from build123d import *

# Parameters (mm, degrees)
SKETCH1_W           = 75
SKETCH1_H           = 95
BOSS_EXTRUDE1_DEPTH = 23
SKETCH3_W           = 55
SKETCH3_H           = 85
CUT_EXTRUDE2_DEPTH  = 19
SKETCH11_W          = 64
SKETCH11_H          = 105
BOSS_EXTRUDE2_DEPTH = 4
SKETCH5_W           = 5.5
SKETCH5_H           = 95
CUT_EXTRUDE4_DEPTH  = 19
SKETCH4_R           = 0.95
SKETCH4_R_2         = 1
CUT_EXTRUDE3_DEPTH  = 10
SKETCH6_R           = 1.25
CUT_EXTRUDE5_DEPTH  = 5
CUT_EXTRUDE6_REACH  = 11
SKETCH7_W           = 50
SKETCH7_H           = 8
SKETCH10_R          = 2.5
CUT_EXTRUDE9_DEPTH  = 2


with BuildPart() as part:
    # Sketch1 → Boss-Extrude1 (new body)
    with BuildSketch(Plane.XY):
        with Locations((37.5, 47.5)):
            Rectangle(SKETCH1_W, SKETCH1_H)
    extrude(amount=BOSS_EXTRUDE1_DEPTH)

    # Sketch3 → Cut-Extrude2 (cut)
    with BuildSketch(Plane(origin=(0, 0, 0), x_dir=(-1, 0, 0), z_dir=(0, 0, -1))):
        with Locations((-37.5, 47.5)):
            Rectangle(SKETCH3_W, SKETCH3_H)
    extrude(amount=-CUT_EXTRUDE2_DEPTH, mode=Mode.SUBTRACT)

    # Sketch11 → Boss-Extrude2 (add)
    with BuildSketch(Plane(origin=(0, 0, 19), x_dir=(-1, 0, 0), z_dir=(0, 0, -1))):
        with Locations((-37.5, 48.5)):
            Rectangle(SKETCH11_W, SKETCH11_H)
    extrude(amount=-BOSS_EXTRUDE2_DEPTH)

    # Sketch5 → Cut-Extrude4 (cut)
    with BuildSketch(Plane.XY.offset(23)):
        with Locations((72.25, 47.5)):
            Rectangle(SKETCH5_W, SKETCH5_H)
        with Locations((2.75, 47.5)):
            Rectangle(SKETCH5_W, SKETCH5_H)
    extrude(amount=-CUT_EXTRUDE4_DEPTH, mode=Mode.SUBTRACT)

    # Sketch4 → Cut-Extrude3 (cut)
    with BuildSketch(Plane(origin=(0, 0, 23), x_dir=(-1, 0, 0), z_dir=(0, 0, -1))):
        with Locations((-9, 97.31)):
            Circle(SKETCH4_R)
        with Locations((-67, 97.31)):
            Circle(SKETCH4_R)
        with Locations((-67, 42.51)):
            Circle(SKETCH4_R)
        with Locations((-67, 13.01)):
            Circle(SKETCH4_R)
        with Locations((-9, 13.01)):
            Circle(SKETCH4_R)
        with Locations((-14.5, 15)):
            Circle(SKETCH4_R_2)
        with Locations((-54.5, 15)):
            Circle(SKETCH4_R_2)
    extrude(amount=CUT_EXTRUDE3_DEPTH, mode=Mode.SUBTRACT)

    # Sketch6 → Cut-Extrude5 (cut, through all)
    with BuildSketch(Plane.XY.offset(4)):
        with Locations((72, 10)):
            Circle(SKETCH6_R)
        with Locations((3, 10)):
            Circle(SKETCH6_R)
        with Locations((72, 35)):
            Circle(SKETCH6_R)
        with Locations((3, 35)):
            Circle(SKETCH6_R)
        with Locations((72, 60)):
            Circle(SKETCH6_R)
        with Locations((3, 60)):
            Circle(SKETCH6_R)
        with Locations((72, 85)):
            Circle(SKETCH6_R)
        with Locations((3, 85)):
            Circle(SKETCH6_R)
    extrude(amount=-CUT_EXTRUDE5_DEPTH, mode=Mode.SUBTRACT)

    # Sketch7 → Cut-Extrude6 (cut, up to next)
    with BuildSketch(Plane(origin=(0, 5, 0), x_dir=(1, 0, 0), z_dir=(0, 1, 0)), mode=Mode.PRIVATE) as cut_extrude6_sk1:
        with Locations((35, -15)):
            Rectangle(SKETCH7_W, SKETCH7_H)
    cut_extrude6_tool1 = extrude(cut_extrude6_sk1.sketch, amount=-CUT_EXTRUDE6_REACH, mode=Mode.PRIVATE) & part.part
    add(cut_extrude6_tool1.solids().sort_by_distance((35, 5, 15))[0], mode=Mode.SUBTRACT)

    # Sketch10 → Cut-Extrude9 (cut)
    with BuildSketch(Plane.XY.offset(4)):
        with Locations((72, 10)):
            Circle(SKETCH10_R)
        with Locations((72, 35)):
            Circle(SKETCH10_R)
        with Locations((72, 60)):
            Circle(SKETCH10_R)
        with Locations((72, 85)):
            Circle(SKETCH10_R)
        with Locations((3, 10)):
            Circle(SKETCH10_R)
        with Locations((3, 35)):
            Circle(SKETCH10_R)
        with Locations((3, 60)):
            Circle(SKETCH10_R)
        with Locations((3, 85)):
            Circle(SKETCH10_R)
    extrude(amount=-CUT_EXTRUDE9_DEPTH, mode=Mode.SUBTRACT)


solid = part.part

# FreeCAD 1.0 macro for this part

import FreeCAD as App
import Part
import Sketcher
Q = App.Units.Quantity


def add_polygon(sketch, points):
    """Adds a closed chain of lines whose ends are joined by coincident constraints."""
    first, n = sketch.GeometryCount, len(points)
    for a, b in zip(points, points[1:] + points[:1]):
        sketch.addGeometry(Part.LineSegment(App.Vector(*a, 0), App.Vector(*b, 0)), False)
    for i in range(n):
        sketch.addConstraint(Sketcher.Constraint("Coincident", first + i, 2, first + (i + 1) % n, 1))

doc = App.newDocument("Part")
params = doc.addObject("Spreadsheet::Sheet", "Params")
for row, (alias, value) in enumerate([
    ("sketch1_width", "75 mm"),
    ("sketch1_height", "95 mm"),
    ("pad1_length", "23 mm"),
    ("sketch2_width", "55 mm"),
    ("sketch2_height", "85 mm"),
    ("pocket1_length", "19 mm"),
    ("sketch3_width", "64 mm"),
    ("sketch3_height", "105 mm"),
    ("pad2_length", "4 mm"),
    ("sketch4_height", "95 mm"),
    ("sketch4_width", "5.5 mm"),
    ("pocket2_length", "19 mm"),
    ("sketch5_diameter", "2 mm"),
    ("sketch5_diameter2", "1.9 mm"),
    ("pocket3_length", "10 mm"),
    ("sketch6_diameter", "2.5 mm"),
    ("sketch7_width", "50 mm"),
    ("sketch7_height", "8 mm"),
    ("sketch8_diameter", "5 mm"),
    ("pocket6_length", "2 mm"),
], start=1):
    params.set(f"A{row}", alias)
    params.set(f"B{row}", "=" + value)
    params.setAlias(f"B{row}", alias)

body = doc.addObject("PartDesign::Body", "Body")

sketch1 = doc.addObject("Sketcher::SketchObject", "Sketch")
body.addObject(sketch1)
sketch1.AttachmentSupport = (doc.XY_Plane, [""])
sketch1.MapMode = "FlatFace"
add_polygon(sketch1, [(0, 95), (0, 0), (75, 0), (75, 95)])
sketch1.addConstraint([
    Sketcher.Constraint("Vertical", 0),
    Sketcher.Constraint("Horizontal", 1),
    Sketcher.Constraint("Vertical", 2),
    Sketcher.Constraint("Horizontal", 3),
    Sketcher.Constraint("Coincident", 0, 2, -1, 1),
    Sketcher.Constraint("DistanceX", 1, 1, 1, 2, Q("75 mm")),
    Sketcher.Constraint("DistanceY", 0, 2, 0, 1, Q("95 mm")),
])
sketch1.setExpression("Constraints[9]", "Params.sketch1_width")
sketch1.setExpression("Constraints[10]", "Params.sketch1_height")
pad1 = doc.addObject("PartDesign::Pad", "Pad")
body.addObject(pad1)
pad1.Profile = sketch1
pad1.setExpression("Length", "Params.pad1_length")

sketch2 = doc.addObject("Sketcher::SketchObject", "Sketch001")
body.addObject(sketch2)
sketch2.AttachmentSupport = (doc.XY_Plane, [""])
sketch2.MapMode = "FlatFace"
add_polygon(sketch2, [(65, 90), (65, 5), (10, 5), (10, 90)])
sketch2.addConstraint([
    Sketcher.Constraint("Vertical", 0),
    Sketcher.Constraint("Horizontal", 1),
    Sketcher.Constraint("Vertical", 2),
    Sketcher.Constraint("Horizontal", 3),
    Sketcher.Constraint("DistanceX", 1, 2, 1, 1, Q("55 mm")),
    Sketcher.Constraint("DistanceY", 0, 2, 0, 1, Q("85 mm")),
    Sketcher.Constraint("DistanceX", -1, 1, 0, 2, Q("65 mm")),
    Sketcher.Constraint("DistanceY", -1, 1, 0, 2, Q("5 mm")),
])
sketch2.setExpression("Constraints[8]", "Params.sketch2_width")
sketch2.setExpression("Constraints[9]", "Params.sketch2_height")
pocket1 = doc.addObject("PartDesign::Pocket", "Pocket")
body.addObject(pocket1)
pocket1.Profile = sketch2
pocket1.setExpression("Length", "Params.pocket1_length")
pocket1.Reversed = True

sketch3 = doc.addObject("Sketcher::SketchObject", "Sketch002")
body.addObject(sketch3)
sketch3.AttachmentSupport = (doc.XY_Plane, [""])
sketch3.MapMode = "FlatFace"
sketch3.AttachmentOffset = App.Placement(App.Vector(0, 0, 19), App.Rotation())
add_polygon(sketch3, [(70, 101), (70, -4), (6, -4), (6, 101)])
sketch3.addConstraint([
    Sketcher.Constraint("Vertical", 0),
    Sketcher.Constraint("Horizontal", 1),
    Sketcher.Constraint("Vertical", 2),
    Sketcher.Constraint("Horizontal", 3),
    Sketcher.Constraint("DistanceX", 1, 2, 1, 1, Q("64 mm")),
    Sketcher.Constraint("DistanceY", 0, 2, 0, 1, Q("105 mm")),
    Sketcher.Constraint("DistanceY", 0, 2, -1, 1, Q("4 mm")),
    Sketcher.Constraint("DistanceX", -1, 1, 0, 2, Q("69.5 mm")),
])
sketch3.setExpression("Constraints[8]", "Params.sketch3_width")
sketch3.setExpression("Constraints[9]", "Params.sketch3_height")
pad2 = doc.addObject("PartDesign::Pad", "Pad001")
body.addObject(pad2)
pad2.Profile = sketch3
pad2.setExpression("Length", "Params.pad2_length")

sketch4 = doc.addObject("Sketcher::SketchObject", "Sketch003")
body.addObject(sketch4)
sketch4.AttachmentSupport = (doc.XY_Plane, [""])
sketch4.MapMode = "FlatFace"
sketch4.AttachmentOffset = App.Placement(App.Vector(0, 0, 23), App.Rotation())
add_polygon(sketch4, [(70, 95), (70, 0), (75, 0), (75, 95)])
add_polygon(sketch4, [(0, 95), (0, 0), (6, 0), (6, 95)])
sketch4.addConstraint([
    Sketcher.Constraint("Vertical", 0),
    Sketcher.Constraint("Horizontal", 1),
    Sketcher.Constraint("Vertical", 2),
    Sketcher.Constraint("Horizontal", 3),
    Sketcher.Constraint("Vertical", 4),
    Sketcher.Constraint("Horizontal", 5),
    Sketcher.Constraint("Vertical", 6),
    Sketcher.Constraint("Horizontal", 7),
    Sketcher.Constraint("Coincident", 4, 2, -1, 1),
    Sketcher.Constraint("PointOnObject", 0, 2, -1),
    Sketcher.Constraint("Horizontal", 3, 2, 6, 2),
    Sketcher.Constraint("Equal", 3, 5),
    Sketcher.Constraint("DistanceY", 0, 2, 0, 1, Q("95 mm")),
    Sketcher.Constraint("DistanceX", 1, 1, 1, 2, Q("5.5 mm")),
    Sketcher.Constraint("DistanceX", -1, 1, 1, 2, Q("75 mm")),
])
sketch4.setExpression("Constraints[20]", "Params.sketch4_height")
sketch4.setExpression("Constraints[21]", "Params.sketch4_width")
pocket2 = doc.addObject("PartDesign::Pocket", "Pocket001")
body.addObject(pocket2)
pocket2.Profile = sketch4
pocket2.setExpression("Length", "Params.pocket2_length")

sketch5 = doc.addObject("Sketcher::SketchObject", "Sketch004")
body.addObject(sketch5)
sketch5.AttachmentSupport = (doc.XY_Plane, [""])
sketch5.MapMode = "FlatFace"
sketch5.AttachmentOffset = App.Placement(App.Vector(0, 0, 23), App.Rotation())
sketch5.addGeometry([
    Part.Circle(App.Vector(9, 97.3, 0), App.Vector(0, 0, 1), 0.9),
    Part.Circle(App.Vector(67, 97.3, 0), App.Vector(0, 0, 1), 0.9),
    Part.Circle(App.Vector(67, 42.5, 0), App.Vector(0, 0, 1), 0.9),
    Part.Circle(App.Vector(67, 13, 0), App.Vector(0, 0, 1), 0.9),
    Part.Circle(App.Vector(9, 13, 0), App.Vector(0, 0, 1), 0.9),
    Part.Circle(App.Vector(14.5, 15, 0), App.Vector(0, 0, 1), 1),
    Part.Circle(App.Vector(54.5, 15, 0), App.Vector(0, 0, 1), 1),
], False)
sketch5.addConstraint([
    Sketcher.Constraint("Equal", 0, 1),
    Sketcher.Constraint("Equal", 1, 2),
    Sketcher.Constraint("Equal", 2, 3),
    Sketcher.Constraint("Equal", 3, 4),
    Sketcher.Constraint("Equal", 5, 6),
    Sketcher.Constraint("Horizontal", 0, 3, 1, 3),
    Sketcher.Constraint("Horizontal", 3, 3, 4, 3),
    Sketcher.Constraint("Horizontal", 5, 3, 6, 3),
    Sketcher.Constraint("Vertical", 1, 3, 2, 3),
    Sketcher.Constraint("Vertical", 2, 3, 3, 3),
    Sketcher.Constraint("Vertical", 0, 3, 4, 3),
    Sketcher.Constraint("Diameter", 5, Q("2 mm")),
    Sketcher.Constraint("Diameter", 0, Q("1.9 mm")),
    Sketcher.Constraint("DistanceX", -1, 1, 0, 3, Q("9 mm")),
    Sketcher.Constraint("DistanceX", -1, 1, 1, 3, Q("67 mm")),
    Sketcher.Constraint("DistanceY", -1, 1, 5, 3, Q("15 mm")),
    Sketcher.Constraint("DistanceX", 5, 3, 6, 3, Q("40 mm")),
    Sketcher.Constraint("DistanceX", -1, 1, 5, 3, Q("14.5 mm")),
    Sketcher.Constraint("DistanceY", 2, 3, 1, 3, Q("54.8 mm")),
    Sketcher.Constraint("DistanceY", 3, 3, 2, 3, Q("29.5 mm")),
    Sketcher.Constraint("DistanceY", -1, 1, 0, 3, Q("97.31 mm")),
])
sketch5.setExpression("Constraints[11]", "Params.sketch5_diameter")
sketch5.setExpression("Constraints[12]", "Params.sketch5_diameter2")
pocket3 = doc.addObject("PartDesign::Pocket", "Pocket002")
body.addObject(pocket3)
pocket3.Profile = sketch5
pocket3.setExpression("Length", "Params.pocket3_length")

sketch6 = doc.addObject("Sketcher::SketchObject", "Sketch005")
body.addObject(sketch6)
sketch6.AttachmentSupport = (doc.XY_Plane, [""])
sketch6.MapMode = "FlatFace"
sketch6.AttachmentOffset = App.Placement(App.Vector(0, 0, 4), App.Rotation())
sketch6.addGeometry([
    Part.Circle(App.Vector(72, 10, 0), App.Vector(0, 0, 1), 1.2),
    Part.Circle(App.Vector(3, 10, 0), App.Vector(0, 0, 1), 1.2),
    Part.Circle(App.Vector(72, 35, 0), App.Vector(0, 0, 1), 1.2),
    Part.Circle(App.Vector(3, 35, 0), App.Vector(0, 0, 1), 1.2),
    Part.Circle(App.Vector(72, 60, 0), App.Vector(0, 0, 1), 1.2),
    Part.Circle(App.Vector(3, 60, 0), App.Vector(0, 0, 1), 1.2),
    Part.Circle(App.Vector(72, 85, 0), App.Vector(0, 0, 1), 1.2),
    Part.Circle(App.Vector(3, 85, 0), App.Vector(0, 0, 1), 1.2),
], False)
sketch6.addConstraint([
    Sketcher.Constraint("Equal", 0, 1),
    Sketcher.Constraint("Equal", 1, 2),
    Sketcher.Constraint("Equal", 2, 3),
    Sketcher.Constraint("Equal", 3, 4),
    Sketcher.Constraint("Equal", 4, 5),
    Sketcher.Constraint("Equal", 5, 6),
    Sketcher.Constraint("Equal", 6, 7),
    Sketcher.Constraint("Horizontal", 0, 3, 1, 3),
    Sketcher.Constraint("Horizontal", 2, 3, 3, 3),
    Sketcher.Constraint("Horizontal", 4, 3, 5, 3),
    Sketcher.Constraint("Horizontal", 6, 3, 7, 3),
    Sketcher.Constraint("Vertical", 0, 3, 2, 3),
    Sketcher.Constraint("Vertical", 1, 3, 3, 3),
    Sketcher.Constraint("Vertical", 2, 3, 4, 3),
    Sketcher.Constraint("Vertical", 3, 3, 5, 3),
    Sketcher.Constraint("Vertical", 4, 3, 6, 3),
    Sketcher.Constraint("Vertical", 5, 3, 7, 3),
    Sketcher.Constraint("Diameter", 0, Q("2.5 mm")),
    Sketcher.Constraint("DistanceX", -1, 1, 0, 3, Q("72 mm")),
    Sketcher.Constraint("DistanceY", -1, 1, 0, 3, Q("10 mm")),
    Sketcher.Constraint("DistanceX", -1, 1, 1, 3, Q("3 mm")),
    Sketcher.Constraint("DistanceY", -1, 1, 2, 3, Q("35 mm")),
    Sketcher.Constraint("DistanceY", -1, 1, 4, 3, Q("60 mm")),
    Sketcher.Constraint("DistanceY", -1, 1, 6, 3, Q("85 mm")),
])
sketch6.setExpression("Constraints[17]", "Params.sketch6_diameter")
pocket4 = doc.addObject("PartDesign::Pocket", "Pocket003")
body.addObject(pocket4)
pocket4.Profile = sketch6
pocket4.Type = "ThroughAll"

sketch7 = doc.addObject("Sketcher::SketchObject", "Sketch006")
body.addObject(sketch7)
sketch7.AttachmentSupport = (doc.XZ_Plane, [""])
sketch7.MapMode = "FlatFace"
sketch7.AttachmentOffset = App.Placement(App.Vector(0, 0, -5), App.Rotation())
add_polygon(sketch7, [(10, 11), (10, 19), (60, 19), (60, 11)])
sketch7.addConstraint([
    Sketcher.Constraint("Vertical", 0),
    Sketcher.Constraint("Horizontal", 1),
    Sketcher.Constraint("Vertical", 2),
    Sketcher.Constraint("Horizontal", 3),
    Sketcher.Constraint("DistanceX", 1, 1, 1, 2, Q("50 mm")),
    Sketcher.Constraint("DistanceY", 0, 1, 0, 2, Q("8 mm")),
    Sketcher.Constraint("DistanceX", -1, 1, 0, 2, Q("10 mm")),
    Sketcher.Constraint("DistanceY", -1, 1, 0, 2, Q("19 mm")),
])
sketch7.setExpression("Constraints[8]", "Params.sketch7_width")
sketch7.setExpression("Constraints[9]", "Params.sketch7_height")
pocket5 = doc.addObject("PartDesign::Pocket", "Pocket004")
body.addObject(pocket5)
pocket5.Profile = sketch7
pocket5.Type = "UpToFirst"
pocket5.Reversed = True

sketch8 = doc.addObject("Sketcher::SketchObject", "Sketch007")
body.addObject(sketch8)
sketch8.AttachmentSupport = (doc.XY_Plane, [""])
sketch8.MapMode = "FlatFace"
sketch8.AttachmentOffset = App.Placement(App.Vector(0, 0, 4), App.Rotation())
sketch8.addGeometry([
    Part.Circle(App.Vector(72, 10, 0), App.Vector(0, 0, 1), 2.5),
    Part.Circle(App.Vector(72, 35, 0), App.Vector(0, 0, 1), 2.5),
    Part.Circle(App.Vector(72, 60, 0), App.Vector(0, 0, 1), 2.5),
    Part.Circle(App.Vector(72, 85, 0), App.Vector(0, 0, 1), 2.5),
    Part.Circle(App.Vector(3, 10, 0), App.Vector(0, 0, 1), 2.5),
    Part.Circle(App.Vector(3, 35, 0), App.Vector(0, 0, 1), 2.5),
    Part.Circle(App.Vector(3, 60, 0), App.Vector(0, 0, 1), 2.5),
    Part.Circle(App.Vector(3, 85, 0), App.Vector(0, 0, 1), 2.5),
], False)
sketch8.addConstraint([
    Sketcher.Constraint("Equal", 0, 1),
    Sketcher.Constraint("Equal", 1, 2),
    Sketcher.Constraint("Equal", 2, 3),
    Sketcher.Constraint("Equal", 3, 4),
    Sketcher.Constraint("Equal", 4, 5),
    Sketcher.Constraint("Equal", 5, 6),
    Sketcher.Constraint("Equal", 6, 7),
    Sketcher.Constraint("Horizontal", 0, 3, 4, 3),
    Sketcher.Constraint("Horizontal", 1, 3, 5, 3),
    Sketcher.Constraint("Horizontal", 2, 3, 6, 3),
    Sketcher.Constraint("Horizontal", 3, 3, 7, 3),
    Sketcher.Constraint("Vertical", 0, 3, 1, 3),
    Sketcher.Constraint("Vertical", 1, 3, 2, 3),
    Sketcher.Constraint("Vertical", 2, 3, 3, 3),
    Sketcher.Constraint("Vertical", 4, 3, 5, 3),
    Sketcher.Constraint("Vertical", 5, 3, 6, 3),
    Sketcher.Constraint("Vertical", 6, 3, 7, 3),
    Sketcher.Constraint("Diameter", 0, Q("5 mm")),
    Sketcher.Constraint("DistanceX", -1, 1, 0, 3, Q("72 mm")),
    Sketcher.Constraint("DistanceY", -1, 1, 0, 3, Q("10 mm")),
    Sketcher.Constraint("DistanceY", -1, 1, 1, 3, Q("35 mm")),
    Sketcher.Constraint("DistanceY", -1, 1, 2, 3, Q("60 mm")),
    Sketcher.Constraint("DistanceY", -1, 1, 3, 3, Q("85 mm")),
    Sketcher.Constraint("DistanceX", -1, 1, 4, 3, Q("3 mm")),
])
sketch8.setExpression("Constraints[17]", "Params.sketch8_diameter")
pocket6 = doc.addObject("PartDesign::Pocket", "Pocket005")
body.addObject(pocket6)
pocket6.Profile = sketch8
pocket6.setExpression("Length", "Params.pocket6_length")

doc.recompute()
